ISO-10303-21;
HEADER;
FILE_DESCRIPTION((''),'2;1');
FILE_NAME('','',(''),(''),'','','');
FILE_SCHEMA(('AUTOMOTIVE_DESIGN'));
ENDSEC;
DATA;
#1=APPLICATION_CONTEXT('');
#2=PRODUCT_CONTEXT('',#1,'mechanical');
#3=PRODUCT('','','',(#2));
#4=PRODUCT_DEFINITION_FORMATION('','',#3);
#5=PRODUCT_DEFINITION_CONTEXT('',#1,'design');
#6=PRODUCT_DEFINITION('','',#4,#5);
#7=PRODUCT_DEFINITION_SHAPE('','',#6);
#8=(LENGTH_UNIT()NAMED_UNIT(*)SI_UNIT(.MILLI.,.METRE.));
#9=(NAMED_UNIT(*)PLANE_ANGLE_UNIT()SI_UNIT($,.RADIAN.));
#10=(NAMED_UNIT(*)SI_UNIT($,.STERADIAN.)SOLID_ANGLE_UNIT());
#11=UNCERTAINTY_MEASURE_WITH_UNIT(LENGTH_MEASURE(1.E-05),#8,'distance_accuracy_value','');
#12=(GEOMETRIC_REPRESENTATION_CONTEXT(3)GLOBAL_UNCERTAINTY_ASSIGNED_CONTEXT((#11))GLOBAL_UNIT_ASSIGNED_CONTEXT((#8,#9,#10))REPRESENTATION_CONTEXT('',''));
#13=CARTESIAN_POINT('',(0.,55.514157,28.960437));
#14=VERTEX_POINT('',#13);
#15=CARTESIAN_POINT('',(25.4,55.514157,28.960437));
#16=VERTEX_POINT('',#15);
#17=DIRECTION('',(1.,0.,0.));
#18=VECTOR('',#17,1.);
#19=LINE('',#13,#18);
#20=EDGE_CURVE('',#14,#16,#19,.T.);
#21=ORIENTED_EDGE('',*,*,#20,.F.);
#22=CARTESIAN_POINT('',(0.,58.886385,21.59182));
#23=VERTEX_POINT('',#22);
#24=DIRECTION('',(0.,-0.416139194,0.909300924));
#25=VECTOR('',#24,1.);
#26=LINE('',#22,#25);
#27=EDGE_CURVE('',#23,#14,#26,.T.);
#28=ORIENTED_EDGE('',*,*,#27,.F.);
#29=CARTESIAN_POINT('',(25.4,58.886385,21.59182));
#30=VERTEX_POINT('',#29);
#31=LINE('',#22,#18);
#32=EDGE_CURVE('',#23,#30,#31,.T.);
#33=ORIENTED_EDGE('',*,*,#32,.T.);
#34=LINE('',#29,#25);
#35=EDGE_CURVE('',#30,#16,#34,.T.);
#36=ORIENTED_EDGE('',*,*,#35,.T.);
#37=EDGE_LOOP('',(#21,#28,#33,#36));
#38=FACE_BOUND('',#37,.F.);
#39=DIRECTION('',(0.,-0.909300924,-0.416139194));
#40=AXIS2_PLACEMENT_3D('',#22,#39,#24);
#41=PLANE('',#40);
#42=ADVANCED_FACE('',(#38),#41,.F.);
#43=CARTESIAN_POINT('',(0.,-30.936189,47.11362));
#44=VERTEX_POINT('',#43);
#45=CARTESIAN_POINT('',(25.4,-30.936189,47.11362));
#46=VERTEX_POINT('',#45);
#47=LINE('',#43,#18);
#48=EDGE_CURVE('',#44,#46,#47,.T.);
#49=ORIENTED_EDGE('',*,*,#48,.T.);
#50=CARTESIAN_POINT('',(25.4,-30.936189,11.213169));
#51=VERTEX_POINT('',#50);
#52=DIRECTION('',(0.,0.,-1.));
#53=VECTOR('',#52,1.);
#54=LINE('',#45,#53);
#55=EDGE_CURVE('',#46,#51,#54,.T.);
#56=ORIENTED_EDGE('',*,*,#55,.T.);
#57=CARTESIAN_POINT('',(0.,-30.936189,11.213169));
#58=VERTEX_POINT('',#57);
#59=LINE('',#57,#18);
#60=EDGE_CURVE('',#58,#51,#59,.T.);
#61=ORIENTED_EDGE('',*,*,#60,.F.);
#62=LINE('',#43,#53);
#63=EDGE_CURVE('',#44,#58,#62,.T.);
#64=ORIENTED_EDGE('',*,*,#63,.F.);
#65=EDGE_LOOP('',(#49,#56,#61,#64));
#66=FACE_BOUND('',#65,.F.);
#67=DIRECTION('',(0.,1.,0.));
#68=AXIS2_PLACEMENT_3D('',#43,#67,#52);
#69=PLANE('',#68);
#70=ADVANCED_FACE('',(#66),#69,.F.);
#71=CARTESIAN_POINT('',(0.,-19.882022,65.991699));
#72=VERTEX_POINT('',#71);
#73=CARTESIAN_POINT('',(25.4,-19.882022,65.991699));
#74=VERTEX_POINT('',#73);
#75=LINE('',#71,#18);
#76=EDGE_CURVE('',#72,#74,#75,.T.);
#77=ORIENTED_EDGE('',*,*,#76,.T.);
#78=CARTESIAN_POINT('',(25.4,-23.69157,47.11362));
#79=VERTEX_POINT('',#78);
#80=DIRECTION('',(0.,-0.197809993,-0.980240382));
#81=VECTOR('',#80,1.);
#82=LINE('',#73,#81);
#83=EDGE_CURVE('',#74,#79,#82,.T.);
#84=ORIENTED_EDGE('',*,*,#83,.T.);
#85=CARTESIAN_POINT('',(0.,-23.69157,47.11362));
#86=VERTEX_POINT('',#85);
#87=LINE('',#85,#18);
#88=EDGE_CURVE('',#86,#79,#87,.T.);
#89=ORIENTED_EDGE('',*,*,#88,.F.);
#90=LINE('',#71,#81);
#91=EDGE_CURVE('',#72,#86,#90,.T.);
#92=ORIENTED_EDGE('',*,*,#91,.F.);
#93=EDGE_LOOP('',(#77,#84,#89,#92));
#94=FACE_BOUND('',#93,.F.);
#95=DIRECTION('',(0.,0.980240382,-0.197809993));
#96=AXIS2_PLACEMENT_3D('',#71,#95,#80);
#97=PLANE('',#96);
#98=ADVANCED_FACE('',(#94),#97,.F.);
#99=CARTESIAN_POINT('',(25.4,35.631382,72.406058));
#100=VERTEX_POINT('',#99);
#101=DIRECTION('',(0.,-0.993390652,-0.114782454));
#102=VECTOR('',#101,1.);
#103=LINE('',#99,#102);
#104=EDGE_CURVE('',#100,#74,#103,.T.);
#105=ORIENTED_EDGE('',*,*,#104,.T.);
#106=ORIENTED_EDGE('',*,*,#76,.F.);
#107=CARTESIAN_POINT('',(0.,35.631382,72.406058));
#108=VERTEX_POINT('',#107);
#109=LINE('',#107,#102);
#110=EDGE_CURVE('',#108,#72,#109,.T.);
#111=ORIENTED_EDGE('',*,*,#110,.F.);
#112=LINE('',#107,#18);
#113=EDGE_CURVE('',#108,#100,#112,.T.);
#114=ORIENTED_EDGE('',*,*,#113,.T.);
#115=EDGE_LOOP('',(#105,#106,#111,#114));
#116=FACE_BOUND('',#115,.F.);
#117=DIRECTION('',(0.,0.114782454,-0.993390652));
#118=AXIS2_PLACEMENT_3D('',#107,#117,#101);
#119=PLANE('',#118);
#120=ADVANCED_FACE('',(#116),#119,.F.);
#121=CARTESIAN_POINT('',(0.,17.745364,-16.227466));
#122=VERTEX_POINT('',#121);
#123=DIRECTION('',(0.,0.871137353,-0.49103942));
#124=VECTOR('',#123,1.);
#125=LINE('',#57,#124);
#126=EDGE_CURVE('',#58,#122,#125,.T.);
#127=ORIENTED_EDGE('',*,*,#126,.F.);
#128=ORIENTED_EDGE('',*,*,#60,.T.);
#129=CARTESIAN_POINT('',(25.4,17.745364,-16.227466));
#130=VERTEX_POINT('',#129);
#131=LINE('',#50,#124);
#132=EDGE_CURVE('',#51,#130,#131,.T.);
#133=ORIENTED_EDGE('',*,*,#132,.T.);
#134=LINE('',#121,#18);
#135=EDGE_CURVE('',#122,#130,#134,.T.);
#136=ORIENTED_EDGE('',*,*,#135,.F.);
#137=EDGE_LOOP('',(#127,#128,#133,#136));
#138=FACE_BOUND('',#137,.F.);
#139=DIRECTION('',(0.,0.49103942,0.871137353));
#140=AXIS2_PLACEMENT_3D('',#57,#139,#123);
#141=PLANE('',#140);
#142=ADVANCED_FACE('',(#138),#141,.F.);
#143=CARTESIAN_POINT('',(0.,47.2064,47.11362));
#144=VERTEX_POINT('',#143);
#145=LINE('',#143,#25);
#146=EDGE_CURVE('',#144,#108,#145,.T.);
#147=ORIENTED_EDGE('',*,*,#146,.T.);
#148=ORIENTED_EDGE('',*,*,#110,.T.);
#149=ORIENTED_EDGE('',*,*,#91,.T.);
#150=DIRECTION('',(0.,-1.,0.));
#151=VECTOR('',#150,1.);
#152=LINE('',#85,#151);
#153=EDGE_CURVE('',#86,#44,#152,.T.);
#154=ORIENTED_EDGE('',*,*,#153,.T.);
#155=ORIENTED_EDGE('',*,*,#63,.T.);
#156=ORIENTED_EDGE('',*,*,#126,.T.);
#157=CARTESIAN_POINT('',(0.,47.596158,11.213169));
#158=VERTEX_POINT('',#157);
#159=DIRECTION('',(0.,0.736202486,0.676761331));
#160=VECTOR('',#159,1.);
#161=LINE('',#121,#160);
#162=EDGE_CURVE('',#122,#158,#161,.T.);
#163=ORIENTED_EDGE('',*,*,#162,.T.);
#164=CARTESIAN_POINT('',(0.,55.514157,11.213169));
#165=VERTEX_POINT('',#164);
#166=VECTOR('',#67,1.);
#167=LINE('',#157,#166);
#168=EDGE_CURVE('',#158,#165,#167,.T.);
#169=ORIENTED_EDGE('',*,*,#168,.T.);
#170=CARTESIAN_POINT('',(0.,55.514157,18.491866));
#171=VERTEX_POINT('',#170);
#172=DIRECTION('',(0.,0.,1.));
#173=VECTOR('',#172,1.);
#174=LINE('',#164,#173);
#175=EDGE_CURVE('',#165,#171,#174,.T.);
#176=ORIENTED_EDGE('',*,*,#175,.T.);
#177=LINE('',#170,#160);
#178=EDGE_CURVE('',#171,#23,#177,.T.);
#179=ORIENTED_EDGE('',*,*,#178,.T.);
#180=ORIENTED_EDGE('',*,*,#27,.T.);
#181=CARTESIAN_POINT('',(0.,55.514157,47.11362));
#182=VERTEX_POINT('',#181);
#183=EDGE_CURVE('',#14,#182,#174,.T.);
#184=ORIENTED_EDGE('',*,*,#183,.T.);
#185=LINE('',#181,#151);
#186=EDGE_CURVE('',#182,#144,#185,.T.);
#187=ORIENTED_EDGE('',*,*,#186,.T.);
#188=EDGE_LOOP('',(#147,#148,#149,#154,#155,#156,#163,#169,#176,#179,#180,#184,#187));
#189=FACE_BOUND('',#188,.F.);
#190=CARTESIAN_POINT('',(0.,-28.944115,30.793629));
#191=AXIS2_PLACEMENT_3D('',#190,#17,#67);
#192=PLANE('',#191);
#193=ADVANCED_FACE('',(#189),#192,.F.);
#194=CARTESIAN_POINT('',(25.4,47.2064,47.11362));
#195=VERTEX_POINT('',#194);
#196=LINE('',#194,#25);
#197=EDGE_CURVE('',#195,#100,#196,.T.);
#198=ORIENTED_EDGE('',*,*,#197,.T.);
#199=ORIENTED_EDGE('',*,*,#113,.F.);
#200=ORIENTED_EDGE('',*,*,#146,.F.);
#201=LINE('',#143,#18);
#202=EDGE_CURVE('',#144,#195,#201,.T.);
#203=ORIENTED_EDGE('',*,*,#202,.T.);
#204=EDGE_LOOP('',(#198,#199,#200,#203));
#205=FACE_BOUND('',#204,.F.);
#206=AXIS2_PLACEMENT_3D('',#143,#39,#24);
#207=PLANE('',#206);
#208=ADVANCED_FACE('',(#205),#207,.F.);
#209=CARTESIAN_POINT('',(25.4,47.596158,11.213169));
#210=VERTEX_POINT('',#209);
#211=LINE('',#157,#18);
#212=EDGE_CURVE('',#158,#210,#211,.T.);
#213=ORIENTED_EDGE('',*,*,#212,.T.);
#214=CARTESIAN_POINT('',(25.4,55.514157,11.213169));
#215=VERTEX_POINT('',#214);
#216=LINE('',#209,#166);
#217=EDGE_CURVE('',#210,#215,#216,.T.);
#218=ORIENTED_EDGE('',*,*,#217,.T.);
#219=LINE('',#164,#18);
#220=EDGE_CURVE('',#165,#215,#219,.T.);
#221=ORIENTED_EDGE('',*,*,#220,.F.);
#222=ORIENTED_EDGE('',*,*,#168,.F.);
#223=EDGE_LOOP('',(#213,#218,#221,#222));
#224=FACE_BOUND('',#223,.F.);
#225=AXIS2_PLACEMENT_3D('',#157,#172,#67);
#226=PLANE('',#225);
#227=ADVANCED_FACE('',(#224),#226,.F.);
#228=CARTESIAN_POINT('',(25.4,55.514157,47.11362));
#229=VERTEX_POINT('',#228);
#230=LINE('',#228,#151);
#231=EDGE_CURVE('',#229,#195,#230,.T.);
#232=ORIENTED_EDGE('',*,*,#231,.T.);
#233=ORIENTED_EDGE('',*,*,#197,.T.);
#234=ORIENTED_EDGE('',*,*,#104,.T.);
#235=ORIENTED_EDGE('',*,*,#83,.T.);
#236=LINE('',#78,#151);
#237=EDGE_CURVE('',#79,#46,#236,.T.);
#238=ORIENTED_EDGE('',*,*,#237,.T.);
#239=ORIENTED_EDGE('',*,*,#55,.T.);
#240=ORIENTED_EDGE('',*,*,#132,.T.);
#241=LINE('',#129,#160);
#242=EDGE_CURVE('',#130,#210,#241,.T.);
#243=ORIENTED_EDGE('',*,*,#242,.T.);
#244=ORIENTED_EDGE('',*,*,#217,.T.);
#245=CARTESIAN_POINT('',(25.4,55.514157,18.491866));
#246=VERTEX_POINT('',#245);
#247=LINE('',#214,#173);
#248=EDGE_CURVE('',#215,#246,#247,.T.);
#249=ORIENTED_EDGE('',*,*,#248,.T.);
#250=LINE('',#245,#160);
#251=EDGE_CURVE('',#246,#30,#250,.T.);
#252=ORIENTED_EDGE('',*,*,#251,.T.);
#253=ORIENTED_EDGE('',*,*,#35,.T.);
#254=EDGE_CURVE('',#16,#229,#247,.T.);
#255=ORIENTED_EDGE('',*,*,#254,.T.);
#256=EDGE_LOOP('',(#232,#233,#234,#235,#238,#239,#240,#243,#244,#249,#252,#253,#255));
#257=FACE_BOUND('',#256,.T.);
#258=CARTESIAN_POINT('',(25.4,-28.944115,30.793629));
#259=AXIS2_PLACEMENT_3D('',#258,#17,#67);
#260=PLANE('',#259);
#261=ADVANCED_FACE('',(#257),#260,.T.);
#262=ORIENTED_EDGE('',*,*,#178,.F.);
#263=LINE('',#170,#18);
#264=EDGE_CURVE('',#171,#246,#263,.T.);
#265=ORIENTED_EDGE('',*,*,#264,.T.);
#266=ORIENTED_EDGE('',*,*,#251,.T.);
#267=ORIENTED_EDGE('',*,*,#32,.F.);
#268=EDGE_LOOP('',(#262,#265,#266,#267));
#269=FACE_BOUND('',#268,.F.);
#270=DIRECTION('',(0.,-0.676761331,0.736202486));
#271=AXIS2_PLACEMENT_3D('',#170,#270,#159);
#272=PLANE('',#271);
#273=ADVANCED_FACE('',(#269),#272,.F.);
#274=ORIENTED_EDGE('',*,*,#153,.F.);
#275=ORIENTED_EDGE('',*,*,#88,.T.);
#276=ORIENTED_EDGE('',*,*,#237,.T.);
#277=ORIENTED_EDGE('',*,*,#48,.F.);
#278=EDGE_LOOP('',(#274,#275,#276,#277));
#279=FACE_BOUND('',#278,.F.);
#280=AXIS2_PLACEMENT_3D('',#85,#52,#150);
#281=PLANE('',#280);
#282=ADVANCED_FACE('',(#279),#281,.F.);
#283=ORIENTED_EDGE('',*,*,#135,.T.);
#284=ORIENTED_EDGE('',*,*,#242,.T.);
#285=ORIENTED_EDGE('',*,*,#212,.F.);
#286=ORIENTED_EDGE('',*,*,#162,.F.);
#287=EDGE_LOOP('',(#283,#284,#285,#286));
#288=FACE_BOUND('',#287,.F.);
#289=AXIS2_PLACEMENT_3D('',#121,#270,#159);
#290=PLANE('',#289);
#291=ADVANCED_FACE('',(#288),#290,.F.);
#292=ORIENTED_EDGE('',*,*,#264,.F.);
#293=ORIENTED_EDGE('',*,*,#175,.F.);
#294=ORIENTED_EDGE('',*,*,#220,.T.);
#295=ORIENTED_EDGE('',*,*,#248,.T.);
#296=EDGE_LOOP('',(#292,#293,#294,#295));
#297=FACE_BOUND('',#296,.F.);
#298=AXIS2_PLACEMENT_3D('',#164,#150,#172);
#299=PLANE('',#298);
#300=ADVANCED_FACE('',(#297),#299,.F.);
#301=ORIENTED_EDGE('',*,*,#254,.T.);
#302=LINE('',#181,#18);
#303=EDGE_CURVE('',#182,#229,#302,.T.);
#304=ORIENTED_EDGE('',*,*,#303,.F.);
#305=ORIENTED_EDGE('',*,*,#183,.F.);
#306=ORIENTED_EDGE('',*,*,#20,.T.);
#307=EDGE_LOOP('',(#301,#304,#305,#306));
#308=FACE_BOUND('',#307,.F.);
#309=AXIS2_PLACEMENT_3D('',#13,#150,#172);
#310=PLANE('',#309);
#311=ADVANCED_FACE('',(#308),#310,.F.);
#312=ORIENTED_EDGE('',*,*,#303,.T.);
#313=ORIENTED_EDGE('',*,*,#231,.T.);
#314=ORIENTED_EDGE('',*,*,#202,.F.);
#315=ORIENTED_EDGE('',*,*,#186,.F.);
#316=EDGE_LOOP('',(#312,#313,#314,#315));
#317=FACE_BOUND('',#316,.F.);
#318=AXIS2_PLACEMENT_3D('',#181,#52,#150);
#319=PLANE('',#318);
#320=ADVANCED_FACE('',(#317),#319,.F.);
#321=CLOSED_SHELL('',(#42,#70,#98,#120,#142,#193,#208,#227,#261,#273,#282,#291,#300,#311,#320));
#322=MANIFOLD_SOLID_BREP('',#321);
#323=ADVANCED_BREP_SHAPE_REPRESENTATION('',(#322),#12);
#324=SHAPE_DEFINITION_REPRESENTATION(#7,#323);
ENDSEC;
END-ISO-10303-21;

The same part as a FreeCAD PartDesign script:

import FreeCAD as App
import Part
import Sketcher
Q = App.Units.Quantity

doc = App.newDocument("Part")
body = doc.addObject("PartDesign::Body", "Body")

sketch1 = doc.addObject("Sketcher::SketchObject", "Sketch")
body.addObject(sketch1)
sketch1.AttachmentSupport = (doc.YZ_Plane, [""])
sketch1.MapMode = "FlatFace"
sketch1.addGeometry([
    Part.LineSegment(App.Vector(-23.7, 47.1, 0), App.Vector(-30.9, 47.1, 0)),
    Part.LineSegment(App.Vector(-30.9, 47.1, 0), App.Vector(-30.9, 11.2, 0)),
    Part.LineSegment(App.Vector(-30.9, 11.2, 0), App.Vector(17.7, -16.2, 0)),
    Part.LineSegment(App.Vector(17.7, -16.2, 0), App.Vector(47.6, 11.2, 0)),
    Part.LineSegment(App.Vector(47.6, 11.2, 0), App.Vector(55.5, 11.2, 0)),
    Part.LineSegment(App.Vector(55.5, 11.2, 0), App.Vector(55.5, 18.5, 0)),
    Part.LineSegment(App.Vector(55.5, 18.5, 0), App.Vector(58.9, 21.6, 0)),
    Part.LineSegment(App.Vector(58.9, 21.6, 0), App.Vector(55.5, 29, 0)),
    Part.LineSegment(App.Vector(55.5, 29, 0), App.Vector(55.5, 47.1, 0)),
    Part.LineSegment(App.Vector(55.5, 47.1, 0), App.Vector(47.2, 47.1, 0)),
    Part.LineSegment(App.Vector(47.2, 47.1, 0), App.Vector(35.6, 72.4, 0)),
    Part.LineSegment(App.Vector(35.6, 72.4, 0), App.Vector(-19.9, 66, 0)),
    Part.LineSegment(App.Vector(-19.9, 66, 0), App.Vector(-23.7, 47.1, 0)),
], False)
sketch1.addConstraint([
    Sketcher.Constraint("Coincident", 0, 2, 1, 1),
    Sketcher.Constraint("Coincident", 1, 2, 2, 1),
    Sketcher.Constraint("Coincident", 2, 2, 3, 1),
    Sketcher.Constraint("Coincident", 3, 2, 4, 1),
    Sketcher.Constraint("Coincident", 4, 2, 5, 1),
    Sketcher.Constraint("Coincident", 5, 2, 6, 1),
    Sketcher.Constraint("Coincident", 6, 2, 7, 1),
    Sketcher.Constraint("Coincident", 7, 2, 8, 1),
    Sketcher.Constraint("Coincident", 8, 2, 9, 1),
    Sketcher.Constraint("Coincident", 9, 2, 10, 1),
    Sketcher.Constraint("Coincident", 10, 2, 11, 1),
    Sketcher.Constraint("Coincident", 11, 2, 12, 1),
    Sketcher.Constraint("Coincident", 12, 2, 0, 1),
    Sketcher.Constraint("Horizontal", 0),
    Sketcher.Constraint("Vertical", 1),
    Sketcher.Constraint("Horizontal", 4),
    Sketcher.Constraint("Vertical", 5),
    Sketcher.Constraint("Vertical", 8),
    Sketcher.Constraint("Horizontal", 9),
    Sketcher.Constraint("Parallel", 3, 6),
    Sketcher.Constraint("Parallel", 7, 10),
    Sketcher.Constraint("Horizontal", 1, 2, 3, 2),
    Sketcher.Constraint("Horizontal", 0, 2, 8, 2),
    Sketcher.Constraint("Vertical", 5, 2, 7, 2),
    Sketcher.Constraint("Equal", 2, 11),
    Sketcher.Constraint("DistanceX", 4, 1, 4, 2, Q("7.917999 mm")),
    Sketcher.Constraint("DistanceX", 0, 2, 0, 1, Q("7.244619 mm")),
    Sketcher.Constraint("DistanceY", 1, 2, 1, 1, Q("35.900451 mm")),
    Sketcher.Constraint("DistanceX", -1, 1, 9, 2, Q("47.2064 mm")),
    Sketcher.Constraint("DistanceY", -1, 1, 11, 2, Q("65.991699 mm")),
    Sketcher.Constraint("DistanceY", 6, 2, 8, 2, Q("25.5218 mm")),
    Sketcher.Constraint("Distance", 3, Q("40.546989 mm")),
    Sketcher.Constraint("Distance", 6, Q("4.580572 mm")),
    Sketcher.Constraint("DistanceX", 9, 2, 9, 1, Q("8.307757 mm")),
    Sketcher.Constraint("DistanceY", 5, 1, 5, 2, Q("7.278698 mm")),
    Sketcher.Constraint("DistanceY", 8, 1, 8, 2, Q("18.153183 mm")),
    Sketcher.Constraint("DistanceX", 0, 2, -1, 1, Q("30.936189 mm")),
    Sketcher.Constraint("DistanceY", -1, 1, 0, 2, Q("47.11362 mm")),
    Sketcher.Constraint("DistanceX", -1, 1, 10, 2, Q("35.631382 mm")),
])
pad1 = doc.addObject("PartDesign::Pad", "Pad")
body.addObject(pad1)
pad1.Profile = sketch1
pad1.Length = Q("1 in")

doc.recompute()
